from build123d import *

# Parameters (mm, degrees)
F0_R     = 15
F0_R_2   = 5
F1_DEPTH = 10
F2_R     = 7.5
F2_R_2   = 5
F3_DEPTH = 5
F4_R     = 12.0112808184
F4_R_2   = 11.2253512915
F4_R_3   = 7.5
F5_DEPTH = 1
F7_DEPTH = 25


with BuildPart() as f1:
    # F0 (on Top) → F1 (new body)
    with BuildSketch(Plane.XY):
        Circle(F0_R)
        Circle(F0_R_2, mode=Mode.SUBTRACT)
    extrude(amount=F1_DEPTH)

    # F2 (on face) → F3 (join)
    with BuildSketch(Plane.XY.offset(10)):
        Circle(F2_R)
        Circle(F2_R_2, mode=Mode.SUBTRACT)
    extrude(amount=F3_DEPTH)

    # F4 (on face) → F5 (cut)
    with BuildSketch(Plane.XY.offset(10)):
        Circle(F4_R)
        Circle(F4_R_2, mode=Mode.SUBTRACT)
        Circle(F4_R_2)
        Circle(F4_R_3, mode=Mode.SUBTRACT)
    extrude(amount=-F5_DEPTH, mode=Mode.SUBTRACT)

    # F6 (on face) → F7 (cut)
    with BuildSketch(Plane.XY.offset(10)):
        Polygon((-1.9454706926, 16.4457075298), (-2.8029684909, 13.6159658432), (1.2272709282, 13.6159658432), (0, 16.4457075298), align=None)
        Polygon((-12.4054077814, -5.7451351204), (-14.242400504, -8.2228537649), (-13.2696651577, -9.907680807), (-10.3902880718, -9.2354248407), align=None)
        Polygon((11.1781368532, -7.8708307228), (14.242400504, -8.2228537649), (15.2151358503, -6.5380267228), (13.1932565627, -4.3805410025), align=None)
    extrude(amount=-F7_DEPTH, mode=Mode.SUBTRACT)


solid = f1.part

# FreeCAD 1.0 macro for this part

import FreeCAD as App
import Part
import Sketcher
from FreeCAD import Vector
Q = App.Units.Quantity


def add_polygon(sketch, points):
    """Adds a closed chain of lines whose ends are joined by coincident constraints."""
    first, n = sketch.GeometryCount, len(points)
    for a, b in zip(points, points[1:] + points[:1]):
        sketch.addGeometry(Part.LineSegment(App.Vector(*a, 0), App.Vector(*b, 0)), False)
    for i in range(n):
        sketch.addConstraint(Sketcher.Constraint("Coincident", first + i, 2, first + (i + 1) % n, 1))

doc = App.newDocument("Part")
body = doc.addObject("PartDesign::Body", "Body")

# Sketch on XY plane
sketch1 = body.newObject("Sketcher::SketchObject", "Sketch")
sketch1.AttachmentSupport = (doc.getObject("XY_Plane"), [""])
sketch1.MapMode = "FlatFace"
sketch1.addGeometry(Part.Circle(Vector(0, 0, 0), Vector(0, 0, 1), 15), False)
sketch1.addGeometry(Part.Circle(Vector(0, 0, 0), Vector(0, 0, 1), 5), False)
sketch1.addConstraint(Sketcher.Constraint("Coincident", 0, 3, -1, 1))
sketch1.addConstraint(Sketcher.Constraint("Coincident", 1, 3, -1, 1))
sketch1.addConstraint(Sketcher.Constraint("Diameter", 0, Q("30 mm")))
sketch1.addConstraint(Sketcher.Constraint("Diameter", 1, Q("10 mm")))
pad1 = body.newObject("PartDesign::Pad", "Pad")
pad1.Profile = sketch1
pad1.Length = 10

# Sketch on XY plane
sketch2 = body.newObject("Sketcher::SketchObject", "Sketch001")
sketch2.AttachmentSupport = (doc.getObject("XY_Plane"), [""])
sketch2.MapMode = "FlatFace"
sketch2.AttachmentOffset = App.Placement(Vector(0, 0, 10), App.Rotation())
sketch2.addGeometry(Part.Circle(Vector(0, 0, 0), Vector(0, 0, 1), 8), False)
sketch2.addGeometry(Part.Circle(Vector(0, 0, 0), Vector(0, 0, 1), 5), False)
sketch2.addConstraint(Sketcher.Constraint("Coincident", 0, 3, -1, 1))
sketch2.addConstraint(Sketcher.Constraint("Coincident", 1, 3, -1, 1))
sketch2.addConstraint(Sketcher.Constraint("Diameter", 0, Q("15 mm")))
sketch2.addConstraint(Sketcher.Constraint("Diameter", 1, Q("10 mm")))
pad2 = body.newObject("PartDesign::Pad", "Pad001")
pad2.Profile = sketch2
pad2.Length = 5

# Sketch on XY plane
sketch3 = body.newObject("Sketcher::SketchObject", "Sketch002")
sketch3.AttachmentSupport = (doc.getObject("XY_Plane"), [""])
sketch3.MapMode = "FlatFace"
sketch3.AttachmentOffset = App.Placement(Vector(0, 0, 10), App.Rotation())
sketch3.addGeometry(Part.Circle(Vector(0, 0, 0), Vector(0, 0, 1), 12), False)
sketch3.addGeometry(Part.Circle(Vector(0, 0, 0), Vector(0, 0, 1), 8), False)
sketch3.addConstraint(Sketcher.Constraint("Coincident", 0, 3, -1, 1))
sketch3.addConstraint(Sketcher.Constraint("Coincident", 1, 3, -1, 1))
sketch3.addConstraint(Sketcher.Constraint("Diameter", 1, Q("15 mm")))
sketch3.addConstraint(Sketcher.Constraint("Diameter", 0, Q("24.022562 mm")))
pocket1 = body.newObject("PartDesign::Pocket", "Pocket")
pocket1.Profile = sketch3
pocket1.Length = 1

# Sketch on XY plane
sketch4 = body.newObject("Sketcher::SketchObject", "Sketch003")
sketch4.AttachmentSupport = (doc.getObject("XY_Plane"), [""])
sketch4.MapMode = "FlatFace"
sketch4.AttachmentOffset = App.Placement(Vector(0, 0, 10), App.Rotation())
add_polygon(sketch4, [(-1.9, 16.4), (-2.8, 13.6), (1.2, 13.6), (0, 16.4)])  # lines 0-3
add_polygon(sketch4, [(-12.4, -5.7), (-14.2, -8.2), (-13.3, -9.9), (-10.4, -9.2)])  # lines 4-7
add_polygon(sketch4, [(11.2, -7.9), (14.2, -8.2), (15.2, -6.5), (13.2, -4.4)])  # lines 8-11
sketch4.addConstraint(Sketcher.Constraint("Horizontal", 1))
sketch4.addConstraint(Sketcher.Constraint("Horizontal", 3))
sketch4.addConstraint(Sketcher.Constraint("Symmetric", 4, 2, 8, 2, -2))
sketch4.addConstraint(Sketcher.Constraint("PointOnObject", 2, 2, -2))
sketch4.addConstraint(Sketcher.Constraint("Parallel", 5, 7))
sketch4.addConstraint(Sketcher.Constraint("Parallel", 9, 11))
sketch4.addConstraint(Sketcher.Constraint("Equal", 2, 4))
sketch4.addConstraint(Sketcher.Constraint("Equal", 0, 6))
sketch4.addConstraint(Sketcher.Constraint("Equal", 4, 8))
sketch4.addConstraint(Sketcher.Constraint("Equal", 5, 9))
sketch4.addConstraint(Sketcher.Constraint("Equal", 6, 10))
sketch4.addConstraint(Sketcher.Constraint("Equal", 7, 11))
sketch4.addConstraint(Sketcher.Constraint("Angle", 5, Q("-60 deg")))
sketch4.addConstraint(Sketcher.Constraint("Angle", 9, Q("60 deg")))
sketch4.addConstraint(Sketcher.Constraint("DistanceX", 11, 2, 9, 2, Q("4.036999 mm")))
sketch4.addConstraint(Sketcher.Constraint("DistanceX", 1, 1, 1, 2, Q("4.030239 mm")))
sketch4.addConstraint(Sketcher.Constraint("DistanceX", 3, 2, 3, 1, Q("1.945471 mm")))
sketch4.addConstraint(Sketcher.Constraint("DistanceX", 4, 2, -1, 1, Q("14.242401 mm")))
sketch4.addConstraint(Sketcher.Constraint("DistanceY", 7, 2, 0, 2, Q("19.361101 mm")))
sketch4.addConstraint(Sketcher.Constraint("DistanceY", 6, 2, 9, 2, Q("2.697398 mm")))
sketch4.addConstraint(Sketcher.Constraint("Distance", 5, Q("1.945471 mm")))
sketch4.addConstraint(Sketcher.Constraint("Distance", 7, Q("4.030239 mm")))
sketch4.addConstraint(Sketcher.Constraint("DistanceY", 5, 2, -1, 1, Q("9.907681 mm")))
pocket2 = body.newObject("PartDesign::Pocket", "Pocket001")
pocket2.Profile = sketch4
pocket2.Length = 25

doc.recompute()
